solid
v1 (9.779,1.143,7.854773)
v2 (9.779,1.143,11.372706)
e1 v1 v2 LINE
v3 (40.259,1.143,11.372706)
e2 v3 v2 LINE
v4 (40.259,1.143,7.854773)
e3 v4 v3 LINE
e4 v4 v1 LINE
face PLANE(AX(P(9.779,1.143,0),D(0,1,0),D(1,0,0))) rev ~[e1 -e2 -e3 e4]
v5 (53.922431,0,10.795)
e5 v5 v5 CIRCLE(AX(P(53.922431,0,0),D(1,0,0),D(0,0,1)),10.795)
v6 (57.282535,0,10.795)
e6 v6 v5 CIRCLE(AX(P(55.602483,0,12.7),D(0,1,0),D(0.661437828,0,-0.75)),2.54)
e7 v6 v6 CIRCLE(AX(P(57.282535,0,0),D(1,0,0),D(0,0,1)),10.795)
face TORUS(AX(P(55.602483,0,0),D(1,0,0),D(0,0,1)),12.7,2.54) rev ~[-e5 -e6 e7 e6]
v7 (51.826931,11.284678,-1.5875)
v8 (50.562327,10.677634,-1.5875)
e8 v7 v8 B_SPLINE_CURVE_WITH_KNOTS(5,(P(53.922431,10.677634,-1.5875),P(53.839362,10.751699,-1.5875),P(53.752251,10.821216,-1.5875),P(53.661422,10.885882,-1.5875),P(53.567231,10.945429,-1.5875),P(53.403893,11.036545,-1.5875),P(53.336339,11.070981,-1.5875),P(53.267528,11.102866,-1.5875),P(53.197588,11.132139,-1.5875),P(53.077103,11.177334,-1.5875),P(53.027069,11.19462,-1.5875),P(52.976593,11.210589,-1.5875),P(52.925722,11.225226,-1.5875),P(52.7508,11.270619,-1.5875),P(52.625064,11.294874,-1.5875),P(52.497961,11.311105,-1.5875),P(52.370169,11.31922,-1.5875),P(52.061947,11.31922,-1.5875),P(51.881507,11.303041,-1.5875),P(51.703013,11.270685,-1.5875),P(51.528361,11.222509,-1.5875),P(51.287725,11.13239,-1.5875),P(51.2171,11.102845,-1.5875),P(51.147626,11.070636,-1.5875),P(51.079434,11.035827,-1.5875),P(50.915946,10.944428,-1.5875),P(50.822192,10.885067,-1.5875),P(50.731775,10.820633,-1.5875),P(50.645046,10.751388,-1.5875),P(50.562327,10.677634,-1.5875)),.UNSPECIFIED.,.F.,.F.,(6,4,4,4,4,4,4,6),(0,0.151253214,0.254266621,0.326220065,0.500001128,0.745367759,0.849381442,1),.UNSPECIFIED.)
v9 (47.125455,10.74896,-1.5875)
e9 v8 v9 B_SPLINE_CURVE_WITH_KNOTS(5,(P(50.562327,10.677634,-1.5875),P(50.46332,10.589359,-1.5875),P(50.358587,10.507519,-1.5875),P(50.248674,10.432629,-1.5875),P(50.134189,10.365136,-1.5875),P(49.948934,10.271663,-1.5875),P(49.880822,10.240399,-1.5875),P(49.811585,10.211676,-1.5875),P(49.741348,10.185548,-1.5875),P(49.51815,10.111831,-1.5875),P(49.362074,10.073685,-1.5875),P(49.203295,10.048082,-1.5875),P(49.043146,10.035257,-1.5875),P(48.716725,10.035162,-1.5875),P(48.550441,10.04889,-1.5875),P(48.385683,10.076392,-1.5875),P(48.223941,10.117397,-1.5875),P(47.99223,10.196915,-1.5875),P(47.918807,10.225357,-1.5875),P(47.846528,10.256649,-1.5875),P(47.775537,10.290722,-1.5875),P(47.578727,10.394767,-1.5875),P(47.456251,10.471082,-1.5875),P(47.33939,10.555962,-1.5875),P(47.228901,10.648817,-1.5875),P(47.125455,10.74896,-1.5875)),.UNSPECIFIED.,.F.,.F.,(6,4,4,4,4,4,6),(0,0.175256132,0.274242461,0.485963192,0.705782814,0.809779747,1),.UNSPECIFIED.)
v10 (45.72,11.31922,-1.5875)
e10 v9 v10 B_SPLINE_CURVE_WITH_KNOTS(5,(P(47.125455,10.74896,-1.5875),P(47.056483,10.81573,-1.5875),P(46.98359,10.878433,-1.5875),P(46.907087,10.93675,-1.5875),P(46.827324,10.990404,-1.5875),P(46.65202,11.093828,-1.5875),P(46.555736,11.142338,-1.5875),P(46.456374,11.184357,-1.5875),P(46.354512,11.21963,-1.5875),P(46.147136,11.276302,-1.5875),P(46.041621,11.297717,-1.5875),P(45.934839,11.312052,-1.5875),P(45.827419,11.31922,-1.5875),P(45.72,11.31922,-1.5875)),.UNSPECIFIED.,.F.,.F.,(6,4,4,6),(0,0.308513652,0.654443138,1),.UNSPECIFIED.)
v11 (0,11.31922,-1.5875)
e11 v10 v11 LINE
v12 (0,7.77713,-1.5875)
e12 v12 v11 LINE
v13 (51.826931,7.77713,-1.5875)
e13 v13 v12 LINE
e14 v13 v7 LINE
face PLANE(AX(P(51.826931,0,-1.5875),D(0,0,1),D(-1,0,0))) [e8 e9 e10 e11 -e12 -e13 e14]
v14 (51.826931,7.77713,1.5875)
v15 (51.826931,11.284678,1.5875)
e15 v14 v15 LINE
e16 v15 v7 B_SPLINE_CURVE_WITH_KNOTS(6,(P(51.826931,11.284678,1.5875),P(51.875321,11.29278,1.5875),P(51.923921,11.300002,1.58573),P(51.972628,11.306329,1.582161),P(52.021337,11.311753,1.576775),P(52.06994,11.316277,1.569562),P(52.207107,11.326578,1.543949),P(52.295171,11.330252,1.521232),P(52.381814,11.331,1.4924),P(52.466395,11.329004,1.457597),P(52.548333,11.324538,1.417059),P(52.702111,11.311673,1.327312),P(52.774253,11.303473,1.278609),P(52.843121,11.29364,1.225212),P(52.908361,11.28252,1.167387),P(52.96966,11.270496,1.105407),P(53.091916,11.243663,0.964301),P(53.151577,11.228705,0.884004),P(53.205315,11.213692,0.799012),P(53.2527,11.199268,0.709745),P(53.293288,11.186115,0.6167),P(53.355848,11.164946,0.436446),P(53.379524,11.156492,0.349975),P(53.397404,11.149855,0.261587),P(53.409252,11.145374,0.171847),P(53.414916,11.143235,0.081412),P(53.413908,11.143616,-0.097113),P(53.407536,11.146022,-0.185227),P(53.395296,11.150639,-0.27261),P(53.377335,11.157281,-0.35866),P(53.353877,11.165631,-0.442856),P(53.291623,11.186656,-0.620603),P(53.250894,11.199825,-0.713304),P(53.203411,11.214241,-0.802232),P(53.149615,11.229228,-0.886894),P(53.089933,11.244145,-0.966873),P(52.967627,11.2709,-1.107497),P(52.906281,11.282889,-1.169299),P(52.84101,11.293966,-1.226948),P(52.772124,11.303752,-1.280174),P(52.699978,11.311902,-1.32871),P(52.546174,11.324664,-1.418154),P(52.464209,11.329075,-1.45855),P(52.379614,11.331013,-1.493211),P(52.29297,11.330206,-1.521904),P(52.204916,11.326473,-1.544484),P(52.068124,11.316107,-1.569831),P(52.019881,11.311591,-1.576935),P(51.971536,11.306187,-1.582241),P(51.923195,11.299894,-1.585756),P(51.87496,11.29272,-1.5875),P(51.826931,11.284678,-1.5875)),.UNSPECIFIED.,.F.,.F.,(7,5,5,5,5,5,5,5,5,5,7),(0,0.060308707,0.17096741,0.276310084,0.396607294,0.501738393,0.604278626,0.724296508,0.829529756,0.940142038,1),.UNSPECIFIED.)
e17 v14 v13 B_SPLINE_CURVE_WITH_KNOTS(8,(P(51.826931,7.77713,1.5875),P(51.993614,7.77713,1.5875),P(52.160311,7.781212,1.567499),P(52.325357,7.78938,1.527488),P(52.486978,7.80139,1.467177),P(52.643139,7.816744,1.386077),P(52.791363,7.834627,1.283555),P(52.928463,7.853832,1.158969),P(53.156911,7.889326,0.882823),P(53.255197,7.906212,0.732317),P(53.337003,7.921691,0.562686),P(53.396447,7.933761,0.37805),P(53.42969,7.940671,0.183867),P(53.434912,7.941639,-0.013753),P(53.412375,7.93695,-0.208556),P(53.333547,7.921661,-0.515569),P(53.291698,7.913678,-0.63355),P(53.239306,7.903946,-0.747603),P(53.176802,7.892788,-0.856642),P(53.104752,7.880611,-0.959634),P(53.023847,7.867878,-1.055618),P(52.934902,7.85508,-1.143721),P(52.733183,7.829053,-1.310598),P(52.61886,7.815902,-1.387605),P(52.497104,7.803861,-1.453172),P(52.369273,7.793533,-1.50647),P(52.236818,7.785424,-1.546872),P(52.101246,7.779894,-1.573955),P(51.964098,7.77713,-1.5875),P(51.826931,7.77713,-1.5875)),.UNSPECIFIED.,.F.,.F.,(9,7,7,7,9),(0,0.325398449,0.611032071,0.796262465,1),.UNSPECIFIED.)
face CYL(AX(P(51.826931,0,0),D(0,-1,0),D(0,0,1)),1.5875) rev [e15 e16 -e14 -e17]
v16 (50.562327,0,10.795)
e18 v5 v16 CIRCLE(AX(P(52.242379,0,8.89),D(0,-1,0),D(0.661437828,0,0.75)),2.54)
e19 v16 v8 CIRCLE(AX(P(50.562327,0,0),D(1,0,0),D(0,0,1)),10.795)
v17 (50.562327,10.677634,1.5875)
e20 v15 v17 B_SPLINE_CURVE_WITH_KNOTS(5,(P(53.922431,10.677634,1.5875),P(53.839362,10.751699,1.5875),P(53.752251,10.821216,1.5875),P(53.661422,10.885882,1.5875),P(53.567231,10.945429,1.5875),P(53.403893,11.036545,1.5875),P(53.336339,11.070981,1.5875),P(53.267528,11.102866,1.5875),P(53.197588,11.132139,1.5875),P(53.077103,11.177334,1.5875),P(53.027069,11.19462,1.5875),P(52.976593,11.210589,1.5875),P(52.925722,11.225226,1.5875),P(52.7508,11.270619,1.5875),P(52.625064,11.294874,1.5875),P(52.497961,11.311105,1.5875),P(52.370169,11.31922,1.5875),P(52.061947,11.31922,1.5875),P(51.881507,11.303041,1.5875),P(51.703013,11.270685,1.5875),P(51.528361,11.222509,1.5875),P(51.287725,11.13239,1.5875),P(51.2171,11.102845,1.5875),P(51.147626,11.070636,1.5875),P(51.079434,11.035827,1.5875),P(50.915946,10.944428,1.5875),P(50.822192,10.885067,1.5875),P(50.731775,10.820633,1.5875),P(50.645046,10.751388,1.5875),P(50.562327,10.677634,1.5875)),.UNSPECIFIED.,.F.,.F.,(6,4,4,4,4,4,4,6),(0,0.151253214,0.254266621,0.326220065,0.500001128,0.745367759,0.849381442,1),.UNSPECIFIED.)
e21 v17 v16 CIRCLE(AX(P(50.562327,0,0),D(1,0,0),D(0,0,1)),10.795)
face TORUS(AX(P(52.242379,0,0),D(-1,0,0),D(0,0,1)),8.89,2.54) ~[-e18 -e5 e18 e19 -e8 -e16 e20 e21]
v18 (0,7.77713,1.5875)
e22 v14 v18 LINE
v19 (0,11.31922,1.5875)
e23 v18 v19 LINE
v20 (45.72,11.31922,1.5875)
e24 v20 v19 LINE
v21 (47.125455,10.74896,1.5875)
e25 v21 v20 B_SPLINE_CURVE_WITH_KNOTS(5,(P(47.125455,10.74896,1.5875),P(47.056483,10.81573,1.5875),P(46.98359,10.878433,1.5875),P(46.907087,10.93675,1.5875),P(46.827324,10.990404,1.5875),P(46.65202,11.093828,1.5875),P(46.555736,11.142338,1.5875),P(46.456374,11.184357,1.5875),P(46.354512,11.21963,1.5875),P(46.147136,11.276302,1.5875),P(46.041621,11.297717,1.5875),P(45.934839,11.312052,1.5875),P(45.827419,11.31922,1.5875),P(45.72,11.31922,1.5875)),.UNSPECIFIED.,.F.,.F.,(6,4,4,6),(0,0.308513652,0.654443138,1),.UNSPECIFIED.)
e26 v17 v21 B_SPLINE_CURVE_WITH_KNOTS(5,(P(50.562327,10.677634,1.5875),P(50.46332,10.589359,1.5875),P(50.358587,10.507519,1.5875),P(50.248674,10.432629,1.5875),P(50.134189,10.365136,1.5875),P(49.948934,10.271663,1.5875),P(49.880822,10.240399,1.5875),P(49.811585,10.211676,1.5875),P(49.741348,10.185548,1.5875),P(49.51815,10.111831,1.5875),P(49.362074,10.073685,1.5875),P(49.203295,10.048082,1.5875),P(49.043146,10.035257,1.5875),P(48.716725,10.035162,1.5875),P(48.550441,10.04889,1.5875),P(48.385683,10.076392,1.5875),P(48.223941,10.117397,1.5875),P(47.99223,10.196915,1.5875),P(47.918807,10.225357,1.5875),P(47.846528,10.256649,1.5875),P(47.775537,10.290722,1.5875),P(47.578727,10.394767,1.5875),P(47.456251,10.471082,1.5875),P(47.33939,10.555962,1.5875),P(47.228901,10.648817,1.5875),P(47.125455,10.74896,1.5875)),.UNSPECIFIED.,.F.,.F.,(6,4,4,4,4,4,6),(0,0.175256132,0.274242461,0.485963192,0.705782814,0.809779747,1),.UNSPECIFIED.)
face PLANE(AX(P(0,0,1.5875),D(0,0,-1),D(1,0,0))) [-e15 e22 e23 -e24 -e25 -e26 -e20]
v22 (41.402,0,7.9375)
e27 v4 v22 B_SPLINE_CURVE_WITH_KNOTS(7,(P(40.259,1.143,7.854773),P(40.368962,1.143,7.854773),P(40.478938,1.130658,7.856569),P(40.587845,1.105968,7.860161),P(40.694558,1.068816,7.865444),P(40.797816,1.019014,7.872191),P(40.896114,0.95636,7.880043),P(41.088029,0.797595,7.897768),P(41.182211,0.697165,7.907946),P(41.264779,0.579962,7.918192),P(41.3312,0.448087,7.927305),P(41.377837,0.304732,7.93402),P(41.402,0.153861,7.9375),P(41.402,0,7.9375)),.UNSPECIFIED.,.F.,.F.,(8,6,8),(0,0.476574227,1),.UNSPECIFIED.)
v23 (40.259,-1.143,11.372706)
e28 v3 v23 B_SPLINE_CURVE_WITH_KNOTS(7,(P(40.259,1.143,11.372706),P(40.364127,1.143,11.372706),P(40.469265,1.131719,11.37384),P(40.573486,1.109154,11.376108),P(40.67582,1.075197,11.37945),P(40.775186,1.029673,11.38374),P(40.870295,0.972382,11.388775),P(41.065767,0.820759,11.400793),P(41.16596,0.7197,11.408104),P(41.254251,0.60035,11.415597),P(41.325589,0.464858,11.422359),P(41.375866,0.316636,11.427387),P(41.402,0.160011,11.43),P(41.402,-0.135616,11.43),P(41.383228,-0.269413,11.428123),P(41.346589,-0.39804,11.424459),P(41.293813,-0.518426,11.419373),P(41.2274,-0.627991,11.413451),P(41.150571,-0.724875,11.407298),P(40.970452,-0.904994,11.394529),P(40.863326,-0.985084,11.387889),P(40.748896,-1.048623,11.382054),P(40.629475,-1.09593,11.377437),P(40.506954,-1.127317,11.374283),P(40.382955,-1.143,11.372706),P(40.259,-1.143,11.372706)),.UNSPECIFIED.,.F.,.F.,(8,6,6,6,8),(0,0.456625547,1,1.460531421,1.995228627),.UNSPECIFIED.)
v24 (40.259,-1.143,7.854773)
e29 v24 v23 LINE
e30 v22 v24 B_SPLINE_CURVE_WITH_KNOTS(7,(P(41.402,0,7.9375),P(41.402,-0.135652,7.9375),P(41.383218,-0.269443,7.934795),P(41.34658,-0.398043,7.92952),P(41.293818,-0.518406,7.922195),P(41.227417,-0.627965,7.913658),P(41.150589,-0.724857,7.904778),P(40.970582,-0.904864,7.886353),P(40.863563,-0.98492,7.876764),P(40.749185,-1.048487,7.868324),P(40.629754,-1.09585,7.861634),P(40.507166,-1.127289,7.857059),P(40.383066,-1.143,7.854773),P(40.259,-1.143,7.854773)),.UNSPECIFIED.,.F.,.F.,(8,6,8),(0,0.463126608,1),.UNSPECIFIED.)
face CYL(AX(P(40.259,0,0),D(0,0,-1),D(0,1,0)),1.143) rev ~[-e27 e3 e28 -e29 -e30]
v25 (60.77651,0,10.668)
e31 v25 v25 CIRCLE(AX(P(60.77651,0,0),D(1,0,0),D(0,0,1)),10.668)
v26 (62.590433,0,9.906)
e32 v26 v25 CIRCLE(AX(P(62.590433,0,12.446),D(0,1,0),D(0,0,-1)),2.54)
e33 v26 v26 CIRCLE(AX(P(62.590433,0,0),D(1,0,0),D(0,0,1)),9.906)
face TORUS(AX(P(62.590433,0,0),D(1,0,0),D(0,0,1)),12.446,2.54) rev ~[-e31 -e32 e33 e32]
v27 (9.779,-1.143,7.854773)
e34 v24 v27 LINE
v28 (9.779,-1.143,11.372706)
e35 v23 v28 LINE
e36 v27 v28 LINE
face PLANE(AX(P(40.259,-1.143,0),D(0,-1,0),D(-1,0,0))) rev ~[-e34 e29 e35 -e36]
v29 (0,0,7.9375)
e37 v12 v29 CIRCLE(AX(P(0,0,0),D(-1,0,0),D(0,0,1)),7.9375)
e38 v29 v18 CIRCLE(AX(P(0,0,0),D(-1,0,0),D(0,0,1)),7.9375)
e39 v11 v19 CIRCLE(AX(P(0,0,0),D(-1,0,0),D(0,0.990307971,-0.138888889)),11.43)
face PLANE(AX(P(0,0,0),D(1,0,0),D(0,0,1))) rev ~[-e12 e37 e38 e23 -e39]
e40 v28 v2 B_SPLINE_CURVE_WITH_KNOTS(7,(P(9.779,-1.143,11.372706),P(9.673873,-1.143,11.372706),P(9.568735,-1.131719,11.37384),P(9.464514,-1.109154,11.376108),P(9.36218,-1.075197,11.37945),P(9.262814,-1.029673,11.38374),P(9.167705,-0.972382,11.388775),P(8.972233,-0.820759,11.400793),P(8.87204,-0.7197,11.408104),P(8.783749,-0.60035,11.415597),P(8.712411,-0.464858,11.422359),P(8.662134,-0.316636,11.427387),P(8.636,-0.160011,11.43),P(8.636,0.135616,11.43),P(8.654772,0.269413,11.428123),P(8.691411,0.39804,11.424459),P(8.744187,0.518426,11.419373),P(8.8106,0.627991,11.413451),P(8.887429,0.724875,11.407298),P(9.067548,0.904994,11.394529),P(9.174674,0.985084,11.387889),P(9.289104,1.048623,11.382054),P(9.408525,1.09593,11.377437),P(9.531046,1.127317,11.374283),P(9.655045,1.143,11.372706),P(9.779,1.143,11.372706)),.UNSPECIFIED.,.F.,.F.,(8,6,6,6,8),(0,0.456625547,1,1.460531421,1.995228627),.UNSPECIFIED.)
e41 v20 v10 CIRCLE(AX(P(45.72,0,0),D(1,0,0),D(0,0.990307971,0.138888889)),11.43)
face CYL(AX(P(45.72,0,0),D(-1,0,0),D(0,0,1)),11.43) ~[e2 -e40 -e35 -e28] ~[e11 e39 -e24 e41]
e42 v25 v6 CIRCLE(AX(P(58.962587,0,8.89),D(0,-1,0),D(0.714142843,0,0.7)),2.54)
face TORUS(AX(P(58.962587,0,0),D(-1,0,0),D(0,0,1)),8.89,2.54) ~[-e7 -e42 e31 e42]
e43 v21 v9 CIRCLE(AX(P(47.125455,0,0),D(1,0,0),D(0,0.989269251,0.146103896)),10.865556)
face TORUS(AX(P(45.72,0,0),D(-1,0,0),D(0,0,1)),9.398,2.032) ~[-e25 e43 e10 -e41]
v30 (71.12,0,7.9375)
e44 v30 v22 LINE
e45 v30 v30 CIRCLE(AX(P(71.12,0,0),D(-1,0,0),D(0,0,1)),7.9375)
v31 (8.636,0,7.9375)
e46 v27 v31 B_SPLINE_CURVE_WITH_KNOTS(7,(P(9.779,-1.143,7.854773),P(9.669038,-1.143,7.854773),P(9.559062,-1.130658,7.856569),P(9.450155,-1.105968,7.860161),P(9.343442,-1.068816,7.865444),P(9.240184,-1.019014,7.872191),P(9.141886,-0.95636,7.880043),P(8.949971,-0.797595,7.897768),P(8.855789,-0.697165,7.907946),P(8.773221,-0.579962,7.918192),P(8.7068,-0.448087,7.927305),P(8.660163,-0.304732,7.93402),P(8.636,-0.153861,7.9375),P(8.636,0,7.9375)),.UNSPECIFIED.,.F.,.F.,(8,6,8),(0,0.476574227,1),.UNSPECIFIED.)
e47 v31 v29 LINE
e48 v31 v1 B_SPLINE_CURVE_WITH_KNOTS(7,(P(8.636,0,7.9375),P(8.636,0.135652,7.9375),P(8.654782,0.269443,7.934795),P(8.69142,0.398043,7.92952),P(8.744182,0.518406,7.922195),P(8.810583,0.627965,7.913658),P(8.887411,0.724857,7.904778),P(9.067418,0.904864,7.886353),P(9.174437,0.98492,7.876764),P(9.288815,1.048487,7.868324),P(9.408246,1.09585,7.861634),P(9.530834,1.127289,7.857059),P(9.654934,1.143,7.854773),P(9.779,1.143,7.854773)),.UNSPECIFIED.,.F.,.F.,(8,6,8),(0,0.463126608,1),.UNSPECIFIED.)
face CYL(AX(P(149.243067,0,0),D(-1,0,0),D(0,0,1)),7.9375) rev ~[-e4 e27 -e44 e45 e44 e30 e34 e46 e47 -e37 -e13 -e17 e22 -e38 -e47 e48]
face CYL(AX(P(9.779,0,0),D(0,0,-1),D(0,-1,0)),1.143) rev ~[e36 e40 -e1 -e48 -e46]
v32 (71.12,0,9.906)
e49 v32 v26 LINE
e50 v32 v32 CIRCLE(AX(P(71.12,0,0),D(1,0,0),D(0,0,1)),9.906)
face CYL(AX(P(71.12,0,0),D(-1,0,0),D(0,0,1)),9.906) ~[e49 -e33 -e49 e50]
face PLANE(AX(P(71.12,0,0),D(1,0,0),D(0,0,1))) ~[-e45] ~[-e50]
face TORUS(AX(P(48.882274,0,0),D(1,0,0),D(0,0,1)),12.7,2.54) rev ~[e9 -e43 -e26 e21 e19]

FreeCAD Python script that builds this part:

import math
import FreeCAD as App
import Part
import Sketcher
Q = App.Units.Quantity

doc = App.newDocument("Part")
body = doc.addObject("PartDesign::Body", "Body")

# Sketch on XY plane
sketch1 = body.newObject("Sketcher::SketchObject", "Sketch")
sketch1.AttachmentSupport = (doc.getObject("XY_Plane"), [""])
sketch1.MapMode = "FlatFace"
sketch1.addGeometry([
    Part.LineSegment(App.Vector(0, 0, 0), App.Vector(71.12, 0, 0)),  # 0
    Part.LineSegment(App.Vector(71.12, 0, 0), App.Vector(71.12, 9.906, 0)),  # 1
    Part.LineSegment(App.Vector(71.12, 9.906, 0), App.Vector(62.590433, 9.906, 0)),  # 2
    Part.ArcOfCircle(Part.Circle(App.Vector(62.590433, 12.446, 0), App.Vector(0, 0, 1), 2.54), math.radians(-135.572996), math.radians(-90)),  # 3
    Part.ArcOfCircle(Part.Circle(App.Vector(58.962587, 8.89, 0), App.Vector(0, 0, 1), 2.54), math.radians(44.427004), math.radians(131.409622)),  # 4
    Part.ArcOfCircle(Part.Circle(App.Vector(55.602483, 12.7, 0), App.Vector(0, 0, 1), 2.54), math.radians(-131.409622), math.radians(-48.590378)),  # 5
    Part.ArcOfCircle(Part.Circle(App.Vector(52.242379, 8.89, 0), App.Vector(0, 0, 1), 2.54), math.radians(48.590378), math.radians(131.409622)),  # 6
    Part.ArcOfCircle(Part.Circle(App.Vector(48.882274, 12.7, 0), App.Vector(0, 0, 1), 2.54), math.radians(-133.761743), math.radians(-48.590378)),  # 7
    Part.ArcOfCircle(Part.Circle(App.Vector(45.72, 9.398, 0), App.Vector(0, 0, 1), 2.032), math.radians(46.238257), math.radians(90)),  # 8
    Part.LineSegment(App.Vector(45.72, 11.43, 0), App.Vector(0, 11.43, 0)),  # 9
    Part.LineSegment(App.Vector(0, 11.43, 0), App.Vector(0, 0, 0)),  # 10
], False)
sketch1.addConstraint([
    Sketcher.Constraint("Coincident", 0, 2, 1, 1),
    Sketcher.Constraint("Coincident", 1, 2, 2, 1),
    Sketcher.Constraint("Tangent", 2, 2, 3, 2),
    Sketcher.Constraint("Tangent", 3, 1, 4, 1),
    Sketcher.Constraint("Tangent", 4, 2, 5, 2),
    Sketcher.Constraint("Tangent", 5, 1, 6, 1),
    Sketcher.Constraint("Tangent", 6, 2, 7, 2),
    Sketcher.Constraint("Tangent", 7, 1, 8, 1),
    Sketcher.Constraint("Tangent", 8, 2, 9, 1),
    Sketcher.Constraint("Coincident", 9, 2, 10, 1),
    Sketcher.Constraint("Coincident", 10, 2, 0, 1),
    Sketcher.Constraint("Horizontal", 0),
    Sketcher.Constraint("Vertical", 1),
    Sketcher.Constraint("Horizontal", 2),
    Sketcher.Constraint("Horizontal", 9),
    Sketcher.Constraint("Vertical", 10),
    Sketcher.Constraint("Coincident", 10, 2, -1, 1),
    Sketcher.Constraint("Equal", 3, 4),
    Sketcher.Constraint("Equal", 4, 5),
    Sketcher.Constraint("Equal", 5, 6),
    Sketcher.Constraint("Equal", 6, 7),
    Sketcher.Constraint("Horizontal", 4, 3, 6, 3),
    Sketcher.Constraint("Horizontal", 5, 3, 7, 3),
    Sketcher.Constraint("Radius", 3, Q("0.1 in")),
    Sketcher.Constraint("Radius", 8, Q("0.08 in")),
    Sketcher.Constraint("DistanceX", 0, 1, 0, 2, Q("2.8 in")),
    Sketcher.Constraint("DistanceX", 9, 2, 9, 1, Q("1.8 in")),
    Sketcher.Constraint("DistanceY", 1, 1, 1, 2, Q("0.39 in")),
    Sketcher.Constraint("DistanceY", 10, 2, 10, 1, Q("0.45 in")),
    Sketcher.Constraint("DistanceY", -1, 1, 5, 3, Q("0.5 in")),
    Sketcher.Constraint("DistanceY", 6, 3, 8, 2, Q("0.1 in")),
])
revolution = body.newObject("PartDesign::Revolution", "Revolution")
revolution.Profile = sketch1
revolution.ReferenceAxis = (sketch1, ["H_Axis"])
revolution.Angle = 360

# Sketch on XY plane
sketch2 = body.newObject("Sketcher::SketchObject", "Sketch001")
sketch2.AttachmentSupport = (doc.getObject("XY_Plane"), [""])
sketch2.MapMode = "FlatFace"
sketch2.addGeometry([
    Part.LineSegment(App.Vector(40.259, 1.143, 0), App.Vector(9.779, 1.143, 0)),
    Part.ArcOfCircle(Part.Circle(App.Vector(9.779, 0, 0), App.Vector(0, 0, 1), 1.143), math.radians(90), math.radians(270)),
    Part.LineSegment(App.Vector(9.779, -1.143, 0), App.Vector(40.259, -1.143, 0)),
    Part.ArcOfCircle(Part.Circle(App.Vector(40.259, 0, 0), App.Vector(0, 0, 1), 1.143), math.radians(-90), math.radians(90)),
], False)
sketch2.addConstraint([
    Sketcher.Constraint("Tangent", 0, 2, 1, 1),
    Sketcher.Constraint("Tangent", 1, 2, 2, 1),
    Sketcher.Constraint("Tangent", 2, 2, 3, 1),
    Sketcher.Constraint("Tangent", 3, 2, 0, 1),
    Sketcher.Constraint("Horizontal", 0),
    Sketcher.Constraint("Horizontal", 2),
    Sketcher.Constraint("PointOnObject", 1, 3, -1),
    Sketcher.Constraint("DistanceX", 0, 2, 0, 1, Q("1.2 in")),
    Sketcher.Constraint("Radius", 1, Q("0.045 in")),
    Sketcher.Constraint("DistanceX", -1, 1, 1, 3, Q("0.385 in")),
])
pocket1 = body.newObject("PartDesign::Pocket", "Pocket")
pocket1.Profile = sketch2
pocket1.Type = "ThroughAll"
pocket1.Reversed = True

# Sketch on XZ plane
sketch3 = body.newObject("Sketcher::SketchObject", "Sketch002")
sketch3.AttachmentSupport = (doc.getObject("XZ_Plane"), [""])
sketch3.MapMode = "FlatFace"
sketch3.addGeometry([
    Part.LineSegment(App.Vector(0, 1.5875, 0), App.Vector(51.826931, 1.5875, 0)),
    Part.ArcOfCircle(Part.Circle(App.Vector(51.826931, 0, 0), App.Vector(0, 0, 1), 1.5875), math.radians(-90), math.radians(90)),
    Part.LineSegment(App.Vector(51.826931, -1.5875, 0), App.Vector(0, -1.5875, 0)),
    Part.LineSegment(App.Vector(0, -1.5875, 0), App.Vector(0, 1.5875, 0)),
], False)
sketch3.addConstraint([
    Sketcher.Constraint("Tangent", 0, 2, 1, 2),
    Sketcher.Constraint("Tangent", 1, 1, 2, 1),
    Sketcher.Constraint("Coincident", 2, 2, 3, 1),
    Sketcher.Constraint("Coincident", 3, 2, 0, 1),
    Sketcher.Constraint("Horizontal", 0),
    Sketcher.Constraint("Horizontal", 2),
    Sketcher.Constraint("Vertical", 3),
    Sketcher.Constraint("Symmetric", 2, 2, 3, 2, -1, 1),
    Sketcher.Constraint("Radius", 1, Q("0.0625 in")),
    Sketcher.Constraint("DistanceX", 0, 1, 0, 2, 51.826931),
])
pocket2 = body.newObject("PartDesign::Pocket", "Pocket001")
pocket2.Profile = sketch3
pocket2.Type = "ThroughAll"

# Sketch on YZ plane
sketch4 = body.newObject("Sketcher::SketchObject", "Sketch003")
sketch4.AttachmentSupport = (doc.getObject("YZ_Plane"), [""])
sketch4.MapMode = "FlatFace"
sketch4.AttachmentOffset = App.Placement(App.Vector(0, 0, 2.8 * 25.4), App.Rotation())
sketch4.addGeometry(Part.Circle(App.Vector(0, 0, 0), App.Vector(0, 0, 1), 7.9375), False)
sketch4.addConstraint([
    Sketcher.Constraint("Coincident", 0, 3, -1, 1),
    Sketcher.Constraint("Diameter", 0, Q("0.625 in")),
])
doc.recompute()
hole = body.newObject("PartDesign::Hole", "Hole")
hole.Profile = sketch4
hole.ThreadType = "None"
hole.Diameter = Q("0.625 in")
hole.DepthType = "ThroughAll"

doc.recompute()
